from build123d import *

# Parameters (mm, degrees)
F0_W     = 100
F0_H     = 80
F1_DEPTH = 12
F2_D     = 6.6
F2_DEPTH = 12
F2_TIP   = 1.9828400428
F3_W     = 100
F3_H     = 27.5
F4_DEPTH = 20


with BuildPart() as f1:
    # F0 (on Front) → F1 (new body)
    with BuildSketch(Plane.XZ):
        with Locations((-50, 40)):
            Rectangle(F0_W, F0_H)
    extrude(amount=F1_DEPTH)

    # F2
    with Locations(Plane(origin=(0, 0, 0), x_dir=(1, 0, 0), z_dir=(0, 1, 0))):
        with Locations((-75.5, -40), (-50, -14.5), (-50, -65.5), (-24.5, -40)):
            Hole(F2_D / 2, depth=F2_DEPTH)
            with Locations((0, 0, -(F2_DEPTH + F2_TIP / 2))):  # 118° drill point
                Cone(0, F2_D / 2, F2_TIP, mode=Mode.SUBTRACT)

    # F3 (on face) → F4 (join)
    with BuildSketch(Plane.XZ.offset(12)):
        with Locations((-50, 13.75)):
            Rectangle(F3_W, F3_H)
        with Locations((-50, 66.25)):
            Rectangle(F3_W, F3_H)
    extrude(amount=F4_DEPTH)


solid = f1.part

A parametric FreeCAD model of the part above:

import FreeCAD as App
import Part
import Sketcher

V = App.Vector

doc = App.newDocument("Part")
params = doc.addObject("Spreadsheet::Sheet", "Params")
for row, (alias, value) in enumerate([
    ("sketch1_width", "100 mm"),
    ("sketch1_height", "80 mm"),
    ("pad1_length", "12 mm"),
    ("sketch2_diameter", "6.6 mm"),
    ("hole_diameter", "6.6 mm"),
    ("hole_depth", "12 mm"),
    ("sketch3_width", "100 mm"),
    ("sketch3_height", "27.5 mm"),
    ("pad2_length", "20 mm"),
], start=1):
    params.set(f"A{row}", alias)
    params.set(f"B{row}", "=" + value)
    params.setAlias(f"B{row}", alias)

body = doc.addObject("PartDesign::Body", "Body")

# Sketch on XZ plane
sketch1 = body.newObject("Sketcher::SketchObject", "Sketch")
sketch1.AttachmentSupport = (doc.getObject("XZ_Plane"), [""])
sketch1.MapMode = "FlatFace"
sketch1.addGeometry(Part.LineSegment(V(-100, 80, 0), V(-100, 0, 0)), False)
sketch1.addGeometry(Part.LineSegment(V(-100, 0, 0), V(0, 0, 0)), False)
sketch1.addGeometry(Part.LineSegment(V(0, 0, 0), V(0, 80, 0)), False)
sketch1.addGeometry(Part.LineSegment(V(0, 80, 0), V(-100, 80, 0)), False)
sketch1.addConstraint(Sketcher.Constraint("Coincident", 0, 2, 1, 1))
sketch1.addConstraint(Sketcher.Constraint("Coincident", 1, 2, 2, 1))
sketch1.addConstraint(Sketcher.Constraint("Coincident", 2, 2, 3, 1))
sketch1.addConstraint(Sketcher.Constraint("Coincident", 3, 2, 0, 1))
sketch1.addConstraint(Sketcher.Constraint("Vertical", 0))
sketch1.addConstraint(Sketcher.Constraint("Horizontal", 1))
sketch1.addConstraint(Sketcher.Constraint("Vertical", 2))
sketch1.addConstraint(Sketcher.Constraint("Horizontal", 3))
sketch1.addConstraint(Sketcher.Constraint("Coincident", 1, 2, -1, 1))
sketch1.addConstraint(Sketcher.Constraint("DistanceX", 1, 1, 1, 2, 100.0))
sketch1.addConstraint(Sketcher.Constraint("DistanceY", 0, 2, 0, 1, 80.0))
sketch1.setExpression("Constraints[9]", "Params.sketch1_width")
sketch1.setExpression("Constraints[10]", "Params.sketch1_height")
pad1 = body.newObject("PartDesign::Pad", "Pad")
pad1.Profile = sketch1
pad1.setExpression("Length", "Params.pad1_length")

# Sketch on XZ plane
sketch2 = body.newObject("Sketcher::SketchObject", "Sketch001")
sketch2.AttachmentSupport = (doc.getObject("XZ_Plane"), [""])
sketch2.MapMode = "FlatFace"
sketch2.addGeometry(Part.Circle(V(-75.5, 40, 0), V(0, 0, 1), 3.3), False)
sketch2.addGeometry(Part.Circle(V(-50, 14.5, 0), V(0, 0, 1), 3.3), False)
sketch2.addGeometry(Part.Circle(V(-50, 65.5, 0), V(0, 0, 1), 3.3), False)
sketch2.addGeometry(Part.Circle(V(-24.5, 40, 0), V(0, 0, 1), 3.3), False)
sketch2.addConstraint(Sketcher.Constraint("Equal", 0, 1))
sketch2.addConstraint(Sketcher.Constraint("Equal", 1, 2))
sketch2.addConstraint(Sketcher.Constraint("Equal", 2, 3))
sketch2.addConstraint(Sketcher.Constraint("Horizontal", 0, 3, 3, 3))
sketch2.addConstraint(Sketcher.Constraint("Vertical", 1, 3, 2, 3))
sketch2.addConstraint(Sketcher.Constraint("Diameter", 0, 6.6))
sketch2.addConstraint(Sketcher.Constraint("DistanceY", -1, 1, 0, 3, 40.0))
sketch2.addConstraint(Sketcher.Constraint("DistanceX", 1, 3, -1, 1, 50.0))
sketch2.addConstraint(Sketcher.Constraint("DistanceY", 1, 3, 2, 3, 51.0))
sketch2.addConstraint(Sketcher.Constraint("DistanceX", 0, 3, 3, 3, 51.0))
sketch2.addConstraint(Sketcher.Constraint("DistanceX", 0, 3, -1, 1, 75.5))
sketch2.addConstraint(Sketcher.Constraint("DistanceY", -1, 1, 1, 3, 14.5))
sketch2.setExpression("Constraints[5]", "Params.sketch2_diameter")
doc.recompute()
hole = body.newObject("PartDesign::Hole", "Hole")
hole.Profile = sketch2
hole.ThreadType = "None"
hole.setExpression("Diameter", "Params.hole_diameter")
hole.DepthType = "Dimension"
hole.setExpression("Depth", "Params.hole_depth")
hole.DrillPoint = "Angled"
hole.DrillPointAngle = 118
hole.Reversed = True

# Sketch on XZ plane
sketch3 = body.newObject("Sketcher::SketchObject", "Sketch002")
sketch3.AttachmentSupport = (doc.getObject("XZ_Plane"), [""])
sketch3.MapMode = "FlatFace"
sketch3.AttachmentOffset = App.Placement(V(0, 0, 12), App.Rotation())
sketch3.addGeometry(Part.LineSegment(V(-100, 27.5, 0), V(-100, 0, 0)), False)
sketch3.addGeometry(Part.LineSegment(V(-100, 0, 0), V(0, 0, 0)), False)
sketch3.addGeometry(Part.LineSegment(V(0, 0, 0), V(0, 27.5, 0)), False)
sketch3.addGeometry(Part.LineSegment(V(0, 27.5, 0), V(-100, 27.5, 0)), False)
sketch3.addGeometry(Part.LineSegment(V(-100, 80, 0), V(-100, 52.5, 0)), False)
sketch3.addGeometry(Part.LineSegment(V(-100, 52.5, 0), V(0, 52.5, 0)), False)
sketch3.addGeometry(Part.LineSegment(V(0, 52.5, 0), V(0, 80, 0)), False)
sketch3.addGeometry(Part.LineSegment(V(0, 80, 0), V(-100, 80, 0)), False)
sketch3.addConstraint(Sketcher.Constraint("Coincident", 0, 2, 1, 1))
sketch3.addConstraint(Sketcher.Constraint("Coincident", 1, 2, 2, 1))
sketch3.addConstraint(Sketcher.Constraint("Coincident", 2, 2, 3, 1))
sketch3.addConstraint(Sketcher.Constraint("Coincident", 3, 2, 0, 1))
sketch3.addConstraint(Sketcher.Constraint("Coincident", 4, 2, 5, 1))
sketch3.addConstraint(Sketcher.Constraint("Coincident", 5, 2, 6, 1))
sketch3.addConstraint(Sketcher.Constraint("Coincident", 6, 2, 7, 1))
sketch3.addConstraint(Sketcher.Constraint("Coincident", 7, 2, 4, 1))
sketch3.addConstraint(Sketcher.Constraint("Vertical", 0))
sketch3.addConstraint(Sketcher.Constraint("Horizontal", 1))
sketch3.addConstraint(Sketcher.Constraint("Vertical", 2))
sketch3.addConstraint(Sketcher.Constraint("Horizontal", 3))
sketch3.addConstraint(Sketcher.Constraint("Vertical", 4))
sketch3.addConstraint(Sketcher.Constraint("Horizontal", 5))
sketch3.addConstraint(Sketcher.Constraint("Vertical", 6))
sketch3.addConstraint(Sketcher.Constraint("Horizontal", 7))
sketch3.addConstraint(Sketcher.Constraint("Coincident", 1, 2, -1, 1))
sketch3.addConstraint(Sketcher.Constraint("PointOnObject", 5, 2, -2))
sketch3.addConstraint(Sketcher.Constraint("Vertical", 3, 2, 4, 2))
sketch3.addConstraint(Sketcher.Constraint("Equal", 2, 4))
sketch3.addConstraint(Sketcher.Constraint("DistanceX", 1, 1, 1, 2, 100.0))
sketch3.addConstraint(Sketcher.Constraint("DistanceY", 0, 2, 0, 1, 27.5))
sketch3.addConstraint(Sketcher.Constraint("DistanceY", -1, 1, 6, 2, 80.0))
sketch3.setExpression("Constraints[20]", "Params.sketch3_width")
sketch3.setExpression("Constraints[21]", "Params.sketch3_height")
pad2 = body.newObject("PartDesign::Pad", "Pad001")
pad2.Profile = sketch3
pad2.setExpression("Length", "Params.pad2_length")

doc.recompute()
